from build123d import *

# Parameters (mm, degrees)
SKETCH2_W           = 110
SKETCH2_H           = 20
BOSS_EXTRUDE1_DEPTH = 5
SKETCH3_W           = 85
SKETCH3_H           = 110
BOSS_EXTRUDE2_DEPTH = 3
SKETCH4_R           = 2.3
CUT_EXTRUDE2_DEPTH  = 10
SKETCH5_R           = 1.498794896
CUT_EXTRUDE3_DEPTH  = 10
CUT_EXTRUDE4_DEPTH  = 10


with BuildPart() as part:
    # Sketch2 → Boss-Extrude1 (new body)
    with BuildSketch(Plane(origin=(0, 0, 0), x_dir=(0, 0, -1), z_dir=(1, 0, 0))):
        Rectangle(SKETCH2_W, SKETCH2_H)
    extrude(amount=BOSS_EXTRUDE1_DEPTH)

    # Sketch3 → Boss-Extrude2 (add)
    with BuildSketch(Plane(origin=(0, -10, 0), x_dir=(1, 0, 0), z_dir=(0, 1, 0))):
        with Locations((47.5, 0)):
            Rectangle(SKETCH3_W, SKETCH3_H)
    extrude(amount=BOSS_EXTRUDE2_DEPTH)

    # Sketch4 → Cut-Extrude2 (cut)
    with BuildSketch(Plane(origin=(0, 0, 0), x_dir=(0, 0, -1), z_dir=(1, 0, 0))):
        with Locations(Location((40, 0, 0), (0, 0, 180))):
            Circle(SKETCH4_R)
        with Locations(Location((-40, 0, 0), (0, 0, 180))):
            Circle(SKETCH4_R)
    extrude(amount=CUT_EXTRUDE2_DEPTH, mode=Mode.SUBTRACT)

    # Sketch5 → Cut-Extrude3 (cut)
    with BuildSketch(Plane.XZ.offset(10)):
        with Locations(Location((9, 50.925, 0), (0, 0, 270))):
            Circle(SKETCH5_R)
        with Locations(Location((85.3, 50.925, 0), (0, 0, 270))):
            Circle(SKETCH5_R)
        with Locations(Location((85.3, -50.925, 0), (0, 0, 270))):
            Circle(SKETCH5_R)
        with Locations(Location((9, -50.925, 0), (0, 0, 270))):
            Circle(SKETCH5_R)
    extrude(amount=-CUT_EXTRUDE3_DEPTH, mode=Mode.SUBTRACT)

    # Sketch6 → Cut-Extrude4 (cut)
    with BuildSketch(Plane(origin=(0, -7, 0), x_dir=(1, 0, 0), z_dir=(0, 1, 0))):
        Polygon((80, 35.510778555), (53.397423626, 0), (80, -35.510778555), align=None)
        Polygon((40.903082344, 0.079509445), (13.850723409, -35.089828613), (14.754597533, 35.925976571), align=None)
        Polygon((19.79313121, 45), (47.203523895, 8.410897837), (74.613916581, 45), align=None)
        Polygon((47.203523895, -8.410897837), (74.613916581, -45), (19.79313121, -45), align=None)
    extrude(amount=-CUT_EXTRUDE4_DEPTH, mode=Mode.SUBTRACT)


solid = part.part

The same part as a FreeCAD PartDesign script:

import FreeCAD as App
import Part
import Sketcher
Q = App.Units.Quantity

doc = App.newDocument("Part")
body = doc.addObject("PartDesign::Body", "Body")

# Sketch on YZ plane
sketch1 = body.newObject("Sketcher::SketchObject", "Sketch")
sketch1.AttachmentSupport = (doc.getObject("YZ_Plane"), [""])
sketch1.MapMode = "FlatFace"
sketch1.addGeometry([
    Part.LineSegment(App.Vector(10, 55, 0), App.Vector(-10, 55, 0)),
    Part.LineSegment(App.Vector(-10, 55, 0), App.Vector(-10, -55, 0)),
    Part.LineSegment(App.Vector(-10, -55, 0), App.Vector(10, -55, 0)),
    Part.LineSegment(App.Vector(10, -55, 0), App.Vector(10, 55, 0)),
], False)
sketch1.addConstraint([
    Sketcher.Constraint("Coincident", 0, 2, 1, 1),
    Sketcher.Constraint("Coincident", 1, 2, 2, 1),
    Sketcher.Constraint("Coincident", 2, 2, 3, 1),
    Sketcher.Constraint("Coincident", 3, 2, 0, 1),
    Sketcher.Constraint("Horizontal", 0),
    Sketcher.Constraint("Vertical", 1),
    Sketcher.Constraint("Horizontal", 2),
    Sketcher.Constraint("Vertical", 3),
    Sketcher.Constraint("Symmetric", 0, 2, 2, 2, -1, 1),
    Sketcher.Constraint("DistanceX", 0, 2, 0, 1, Q("20 mm")),
    Sketcher.Constraint("DistanceY", 1, 2, 1, 1, Q("110 mm")),
])
pad1 = body.newObject("PartDesign::Pad", "Pad")
pad1.Profile = sketch1
pad1.Length = 5

# Sketch on XZ plane
sketch2 = body.newObject("Sketcher::SketchObject", "Sketch001")
sketch2.AttachmentSupport = (doc.getObject("XZ_Plane"), [""])
sketch2.MapMode = "FlatFace"
sketch2.AttachmentOffset = App.Placement(App.Vector(0, 0, 10), App.Rotation())
sketch2.addGeometry([
    Part.LineSegment(App.Vector(5, -55, 0), App.Vector(5, 55, 0)),
    Part.LineSegment(App.Vector(5, 55, 0), App.Vector(90, 55, 0)),
    Part.LineSegment(App.Vector(90, 55, 0), App.Vector(90, -55, 0)),
    Part.LineSegment(App.Vector(90, -55, 0), App.Vector(5, -55, 0)),
], False)
sketch2.addConstraint([
    Sketcher.Constraint("Coincident", 0, 2, 1, 1),
    Sketcher.Constraint("Coincident", 1, 2, 2, 1),
    Sketcher.Constraint("Coincident", 2, 2, 3, 1),
    Sketcher.Constraint("Coincident", 3, 2, 0, 1),
    Sketcher.Constraint("Vertical", 0),
    Sketcher.Constraint("Horizontal", 1),
    Sketcher.Constraint("Vertical", 2),
    Sketcher.Constraint("Horizontal", 3),
    Sketcher.Constraint("DistanceX", 1, 1, 1, 2, Q("85 mm")),
    Sketcher.Constraint("DistanceY", 0, 1, 0, 2, Q("110 mm")),
    Sketcher.Constraint("DistanceX", -1, 1, 0, 2, Q("5 mm")),
    Sketcher.Constraint("DistanceY", -1, 1, 0, 2, Q("55 mm")),
])
pad2 = body.newObject("PartDesign::Pad", "Pad001")
pad2.Profile = sketch2
pad2.Length = 3
pad2.Reversed = True

# Sketch on YZ plane
sketch3 = body.newObject("Sketcher::SketchObject", "Sketch002")
sketch3.AttachmentSupport = (doc.getObject("YZ_Plane"), [""])
sketch3.MapMode = "FlatFace"
sketch3.addGeometry([
    Part.Circle(App.Vector(0, -40, 0), App.Vector(0, 0, 1), 2.3),
    Part.Circle(App.Vector(0, 40, 0), App.Vector(0, 0, 1), 2.3),
], False)
sketch3.addConstraint([
    Sketcher.Constraint("Equal", 0, 1),
    Sketcher.Constraint("Symmetric", 0, 3, 1, 3, -1, 1),
    Sketcher.Constraint("PointOnObject", 0, 3, -2),
    Sketcher.Constraint("Diameter", 0, Q("4.6 mm")),
    Sketcher.Constraint("DistanceY", 0, 3, -1, 1, Q("40 mm")),
])
pocket1 = body.newObject("PartDesign::Pocket", "Pocket")
pocket1.Profile = sketch3
pocket1.Length = 10
pocket1.Reversed = True

# Sketch on XZ plane
sketch4 = body.newObject("Sketcher::SketchObject", "Sketch003")
sketch4.AttachmentSupport = (doc.getObject("XZ_Plane"), [""])
sketch4.MapMode = "FlatFace"
sketch4.AttachmentOffset = App.Placement(App.Vector(0, 0, 10), App.Rotation())
sketch4.addGeometry([
    Part.Circle(App.Vector(9, 50.925, 0), App.Vector(0, 0, 1), 1.498795),
    Part.Circle(App.Vector(85.3, 50.925, 0), App.Vector(0, 0, 1), 1.498795),
    Part.Circle(App.Vector(85.3, -50.925, 0), App.Vector(0, 0, 1), 1.498795),
    Part.Circle(App.Vector(9, -50.925, 0), App.Vector(0, 0, 1), 1.498795),
], False)
sketch4.addConstraint([
    Sketcher.Constraint("Equal", 0, 1),
    Sketcher.Constraint("Equal", 1, 2),
    Sketcher.Constraint("Equal", 2, 3),
    Sketcher.Constraint("Symmetric", 1, 3, 2, 3, -1),
    Sketcher.Constraint("Symmetric", 0, 3, 3, 3, -1),
    Sketcher.Constraint("Horizontal", 0, 3, 1, 3),
    Sketcher.Constraint("DistanceX", -1, 1, 0, 3, Q("9 mm")),
    Sketcher.Constraint("DistanceX", -1, 1, 1, 3, Q("85.3 mm")),
    Sketcher.Constraint("Diameter", 0, Q("2.99759 mm")),
    Sketcher.Constraint("DistanceY", 2, 3, 1, 3, Q("101.85 mm")),
])
pocket2 = body.newObject("PartDesign::Pocket", "Pocket001")
pocket2.Profile = sketch4
pocket2.Length = 10

# Sketch on XZ plane
sketch5 = body.newObject("Sketcher::SketchObject", "Sketch004")
sketch5.AttachmentSupport = (doc.getObject("XZ_Plane"), [""])
sketch5.MapMode = "FlatFace"
sketch5.AttachmentOffset = App.Placement(App.Vector(0, 0, 7), App.Rotation())
sketch5.addGeometry([
    Part.LineSegment(App.Vector(80, -35.510779, 0), App.Vector(53.397424, 0, 0)),  # 0
    Part.LineSegment(App.Vector(53.397424, 0, 0), App.Vector(80, 35.510779, 0)),  # 1
    Part.LineSegment(App.Vector(80, 35.510779, 0), App.Vector(80, -35.510779, 0)),  # 2
    Part.LineSegment(App.Vector(13.850723, 35.089829, 0), App.Vector(40.903082, -0.079509, 0)),  # 3
    Part.LineSegment(App.Vector(40.903082, -0.079509, 0), App.Vector(14.754598, -35.925977, 0)),  # 4
    Part.LineSegment(App.Vector(14.754598, -35.925977, 0), App.Vector(13.850723, 35.089829, 0)),  # 5
    Part.LineSegment(App.Vector(19.793131, -45, 0), App.Vector(47.203524, -8.410898, 0)),  # 6
    Part.LineSegment(App.Vector(47.203524, -8.410898, 0), App.Vector(74.613917, -45, 0)),  # 7
    Part.LineSegment(App.Vector(74.613917, -45, 0), App.Vector(19.793131, -45, 0)),  # 8
    Part.LineSegment(App.Vector(74.613917, 45, 0), App.Vector(47.203524, 8.410898, 0)),  # 9
    Part.LineSegment(App.Vector(47.203524, 8.410898, 0), App.Vector(19.793131, 45, 0)),  # 10
    Part.LineSegment(App.Vector(19.793131, 45, 0), App.Vector(74.613917, 45, 0)),  # 11
], False)
sketch5.addConstraint([
    Sketcher.Constraint("Coincident", 0, 2, 1, 1),
    Sketcher.Constraint("Coincident", 1, 2, 2, 1),
    Sketcher.Constraint("Coincident", 2, 2, 0, 1),
    Sketcher.Constraint("Coincident", 3, 2, 4, 1),
    Sketcher.Constraint("Coincident", 4, 2, 5, 1),
    Sketcher.Constraint("Coincident", 5, 2, 3, 1),
    Sketcher.Constraint("Coincident", 6, 2, 7, 1),
    Sketcher.Constraint("Coincident", 7, 2, 8, 1),
    Sketcher.Constraint("Coincident", 8, 2, 6, 1),
    Sketcher.Constraint("Coincident", 9, 2, 10, 1),
    Sketcher.Constraint("Coincident", 10, 2, 11, 1),
    Sketcher.Constraint("Coincident", 11, 2, 9, 1),
    Sketcher.Constraint("Vertical", 2),
    Sketcher.Constraint("Horizontal", 8),
    Sketcher.Constraint("Horizontal", 11),
    Sketcher.Constraint("Symmetric", 6, 2, 9, 2, -1),
    Sketcher.Constraint("Symmetric", 8, 2, 10, 2, -1),
    Sketcher.Constraint("PointOnObject", 0, 2, -1),
    Sketcher.Constraint("Parallel", 1, 6),
    Sketcher.Constraint("Parallel", 0, 7),
    Sketcher.Constraint("Parallel", 6, 9),
    Sketcher.Constraint("Parallel", 7, 10),
    Sketcher.Constraint("Equal", 1, 3),
    Sketcher.Constraint("Equal", 3, 4),
    Sketcher.Constraint("DistanceX", -1, 1, 1, 2, Q("80 mm")),
    Sketcher.Constraint("DistanceY", 7, 2, -1, 1, Q("45 mm")),
    Sketcher.Constraint("DistanceY", 4, 2, 2, 2, Q("0.415198 mm")),
    Sketcher.Constraint("DistanceX", 5, 2, 0, 2, Q("39.5467 mm")),
    Sketcher.Constraint("DistanceX", 6, 2, 0, 2, Q("6.1939 mm")),
    Sketcher.Constraint("DistanceX", 8, 2, 8, 1, Q("54.820785 mm")),
    Sketcher.Constraint("DistanceY", 2, 2, 2, 1, Q("71.021557 mm")),
    Sketcher.Constraint("DistanceY", 3, 2, -1, 1, Q("0.079509 mm")),
    Sketcher.Constraint("DistanceY", -1, 1, 5, 2, Q("35.089829 mm")),
    Sketcher.Constraint("DistanceX", -1, 1, 8, 2, Q("19.793131 mm")),
])
pocket3 = body.newObject("PartDesign::Pocket", "Pocket002")
pocket3.Profile = sketch5
pocket3.Length = 10
pocket3.Reversed = True

doc.recompute()
